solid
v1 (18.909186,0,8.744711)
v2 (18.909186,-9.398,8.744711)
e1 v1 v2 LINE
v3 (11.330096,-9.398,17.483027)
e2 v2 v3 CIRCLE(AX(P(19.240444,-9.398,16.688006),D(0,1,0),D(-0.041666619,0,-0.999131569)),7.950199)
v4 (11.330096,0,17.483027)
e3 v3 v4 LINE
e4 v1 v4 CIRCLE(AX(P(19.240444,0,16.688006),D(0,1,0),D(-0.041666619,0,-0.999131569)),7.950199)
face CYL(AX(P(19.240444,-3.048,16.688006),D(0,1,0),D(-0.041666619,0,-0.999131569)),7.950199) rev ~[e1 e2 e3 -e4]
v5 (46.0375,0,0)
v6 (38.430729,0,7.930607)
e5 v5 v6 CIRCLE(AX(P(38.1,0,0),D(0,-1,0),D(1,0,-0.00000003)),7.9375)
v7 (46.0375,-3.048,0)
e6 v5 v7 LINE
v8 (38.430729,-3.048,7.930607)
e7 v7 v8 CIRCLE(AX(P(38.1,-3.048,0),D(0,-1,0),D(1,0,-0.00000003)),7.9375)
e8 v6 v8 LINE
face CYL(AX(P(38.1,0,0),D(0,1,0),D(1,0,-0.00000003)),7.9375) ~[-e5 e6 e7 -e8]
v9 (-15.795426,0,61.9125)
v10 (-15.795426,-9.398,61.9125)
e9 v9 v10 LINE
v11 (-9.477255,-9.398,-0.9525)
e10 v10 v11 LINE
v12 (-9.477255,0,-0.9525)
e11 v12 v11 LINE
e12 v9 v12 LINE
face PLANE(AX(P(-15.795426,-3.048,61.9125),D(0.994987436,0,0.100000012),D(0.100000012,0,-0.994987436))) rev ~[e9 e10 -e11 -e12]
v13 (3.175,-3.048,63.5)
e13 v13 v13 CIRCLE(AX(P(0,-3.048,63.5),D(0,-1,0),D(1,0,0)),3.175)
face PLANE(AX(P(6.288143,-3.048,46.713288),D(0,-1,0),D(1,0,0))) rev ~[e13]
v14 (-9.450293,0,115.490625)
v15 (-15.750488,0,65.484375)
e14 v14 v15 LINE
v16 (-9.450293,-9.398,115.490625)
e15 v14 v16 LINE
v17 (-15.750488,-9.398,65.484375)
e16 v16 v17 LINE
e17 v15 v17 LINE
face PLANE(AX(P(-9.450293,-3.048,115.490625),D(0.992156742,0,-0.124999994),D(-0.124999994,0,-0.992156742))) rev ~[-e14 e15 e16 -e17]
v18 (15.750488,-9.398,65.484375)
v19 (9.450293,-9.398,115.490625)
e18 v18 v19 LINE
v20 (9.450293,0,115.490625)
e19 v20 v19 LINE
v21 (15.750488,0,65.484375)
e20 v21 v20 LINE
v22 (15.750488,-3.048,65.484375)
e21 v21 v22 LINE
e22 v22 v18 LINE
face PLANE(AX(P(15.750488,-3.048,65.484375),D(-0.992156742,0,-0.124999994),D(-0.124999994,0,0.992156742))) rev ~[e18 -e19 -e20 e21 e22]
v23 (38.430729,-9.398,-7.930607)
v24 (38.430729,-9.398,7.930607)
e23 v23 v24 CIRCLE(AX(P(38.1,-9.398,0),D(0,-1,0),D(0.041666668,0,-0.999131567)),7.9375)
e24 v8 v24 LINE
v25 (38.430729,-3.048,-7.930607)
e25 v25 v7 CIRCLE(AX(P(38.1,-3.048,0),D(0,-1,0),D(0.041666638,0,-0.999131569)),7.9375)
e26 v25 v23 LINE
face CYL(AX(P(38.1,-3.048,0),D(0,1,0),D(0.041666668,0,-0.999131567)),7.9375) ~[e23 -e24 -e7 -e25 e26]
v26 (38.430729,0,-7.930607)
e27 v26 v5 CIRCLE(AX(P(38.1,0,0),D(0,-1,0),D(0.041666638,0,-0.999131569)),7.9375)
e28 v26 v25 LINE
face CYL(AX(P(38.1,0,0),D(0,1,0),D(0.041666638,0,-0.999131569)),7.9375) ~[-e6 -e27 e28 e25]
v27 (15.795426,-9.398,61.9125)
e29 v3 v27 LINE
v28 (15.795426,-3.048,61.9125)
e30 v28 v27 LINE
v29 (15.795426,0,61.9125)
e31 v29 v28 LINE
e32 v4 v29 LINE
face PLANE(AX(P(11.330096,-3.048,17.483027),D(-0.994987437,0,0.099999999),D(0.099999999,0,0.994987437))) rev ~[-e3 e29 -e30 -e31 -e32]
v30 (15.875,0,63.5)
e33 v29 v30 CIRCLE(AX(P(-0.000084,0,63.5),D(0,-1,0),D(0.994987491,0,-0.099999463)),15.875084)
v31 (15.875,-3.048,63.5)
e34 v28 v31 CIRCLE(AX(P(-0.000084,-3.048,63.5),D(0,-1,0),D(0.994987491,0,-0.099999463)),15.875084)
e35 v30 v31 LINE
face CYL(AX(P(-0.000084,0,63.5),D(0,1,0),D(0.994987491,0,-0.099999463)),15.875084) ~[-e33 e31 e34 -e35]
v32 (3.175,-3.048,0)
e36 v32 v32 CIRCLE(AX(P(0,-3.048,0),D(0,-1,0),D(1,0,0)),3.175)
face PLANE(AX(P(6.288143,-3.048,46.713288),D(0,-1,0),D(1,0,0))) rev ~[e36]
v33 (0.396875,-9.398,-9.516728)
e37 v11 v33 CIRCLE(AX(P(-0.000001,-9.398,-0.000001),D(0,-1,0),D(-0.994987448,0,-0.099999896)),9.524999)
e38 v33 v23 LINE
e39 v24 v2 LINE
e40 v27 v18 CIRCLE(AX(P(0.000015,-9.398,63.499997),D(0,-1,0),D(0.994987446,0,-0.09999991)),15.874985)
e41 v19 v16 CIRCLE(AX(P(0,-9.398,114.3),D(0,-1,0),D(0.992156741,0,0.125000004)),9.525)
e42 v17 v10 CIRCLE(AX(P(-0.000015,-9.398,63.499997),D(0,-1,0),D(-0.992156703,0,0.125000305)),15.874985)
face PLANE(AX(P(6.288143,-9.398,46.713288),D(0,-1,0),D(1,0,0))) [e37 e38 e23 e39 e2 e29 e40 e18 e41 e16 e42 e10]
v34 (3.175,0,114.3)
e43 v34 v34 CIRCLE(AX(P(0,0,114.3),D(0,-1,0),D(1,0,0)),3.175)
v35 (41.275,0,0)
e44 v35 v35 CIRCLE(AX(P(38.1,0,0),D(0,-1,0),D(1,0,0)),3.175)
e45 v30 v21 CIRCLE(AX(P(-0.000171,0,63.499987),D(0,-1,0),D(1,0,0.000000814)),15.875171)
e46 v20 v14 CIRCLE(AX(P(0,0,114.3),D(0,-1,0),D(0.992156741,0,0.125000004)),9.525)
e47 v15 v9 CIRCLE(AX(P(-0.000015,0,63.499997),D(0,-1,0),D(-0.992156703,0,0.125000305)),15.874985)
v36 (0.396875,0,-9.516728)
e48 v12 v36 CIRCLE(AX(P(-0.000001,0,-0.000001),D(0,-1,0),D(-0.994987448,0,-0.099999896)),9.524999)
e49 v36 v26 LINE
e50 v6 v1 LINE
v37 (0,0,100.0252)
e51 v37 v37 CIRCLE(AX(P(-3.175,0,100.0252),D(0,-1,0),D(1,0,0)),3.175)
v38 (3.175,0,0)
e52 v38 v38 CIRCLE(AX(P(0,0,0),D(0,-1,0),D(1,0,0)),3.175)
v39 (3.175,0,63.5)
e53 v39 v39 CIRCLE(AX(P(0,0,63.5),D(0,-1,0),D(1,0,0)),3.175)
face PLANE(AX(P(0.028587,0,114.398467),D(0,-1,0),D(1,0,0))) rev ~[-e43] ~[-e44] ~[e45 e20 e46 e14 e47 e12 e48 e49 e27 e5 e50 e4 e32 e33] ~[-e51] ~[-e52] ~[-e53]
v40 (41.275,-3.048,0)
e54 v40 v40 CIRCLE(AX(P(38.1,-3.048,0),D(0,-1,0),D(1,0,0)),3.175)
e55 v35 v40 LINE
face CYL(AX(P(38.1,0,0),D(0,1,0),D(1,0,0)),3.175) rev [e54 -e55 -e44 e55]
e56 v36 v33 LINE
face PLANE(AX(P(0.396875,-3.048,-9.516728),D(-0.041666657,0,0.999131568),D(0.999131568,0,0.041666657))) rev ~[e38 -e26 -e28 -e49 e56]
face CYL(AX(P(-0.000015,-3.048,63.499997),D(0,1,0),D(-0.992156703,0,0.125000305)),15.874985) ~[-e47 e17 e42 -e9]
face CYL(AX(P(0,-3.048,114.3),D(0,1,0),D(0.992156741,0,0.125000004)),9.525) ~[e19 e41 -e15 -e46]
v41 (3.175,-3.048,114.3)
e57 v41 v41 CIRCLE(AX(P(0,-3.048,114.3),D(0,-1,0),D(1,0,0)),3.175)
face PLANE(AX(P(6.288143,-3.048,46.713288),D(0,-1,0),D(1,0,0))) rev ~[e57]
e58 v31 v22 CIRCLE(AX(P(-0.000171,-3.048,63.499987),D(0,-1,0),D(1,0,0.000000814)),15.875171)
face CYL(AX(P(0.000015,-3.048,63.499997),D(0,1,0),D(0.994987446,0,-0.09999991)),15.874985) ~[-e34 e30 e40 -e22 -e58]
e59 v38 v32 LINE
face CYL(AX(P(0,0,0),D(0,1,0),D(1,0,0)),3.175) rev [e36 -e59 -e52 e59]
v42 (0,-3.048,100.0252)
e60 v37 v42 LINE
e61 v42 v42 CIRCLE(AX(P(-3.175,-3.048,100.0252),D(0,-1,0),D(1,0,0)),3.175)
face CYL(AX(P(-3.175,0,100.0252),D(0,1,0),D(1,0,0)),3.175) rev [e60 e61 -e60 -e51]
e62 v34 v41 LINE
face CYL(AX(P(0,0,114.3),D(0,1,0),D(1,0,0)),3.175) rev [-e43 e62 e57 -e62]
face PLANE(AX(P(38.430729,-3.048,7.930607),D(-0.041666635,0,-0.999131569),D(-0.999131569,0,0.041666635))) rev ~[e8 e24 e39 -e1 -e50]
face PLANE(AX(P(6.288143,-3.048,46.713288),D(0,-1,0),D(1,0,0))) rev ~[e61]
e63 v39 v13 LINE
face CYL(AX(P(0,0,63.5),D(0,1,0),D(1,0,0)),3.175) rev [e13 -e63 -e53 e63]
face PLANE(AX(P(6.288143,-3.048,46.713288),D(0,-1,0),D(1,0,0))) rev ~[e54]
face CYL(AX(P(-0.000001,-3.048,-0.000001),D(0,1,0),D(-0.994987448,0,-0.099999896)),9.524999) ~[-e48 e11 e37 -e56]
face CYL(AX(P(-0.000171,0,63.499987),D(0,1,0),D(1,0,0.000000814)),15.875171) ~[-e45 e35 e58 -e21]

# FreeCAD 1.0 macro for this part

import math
import FreeCAD as App
import Part
import Sketcher
from FreeCAD import Vector
Q = App.Units.Quantity

doc = App.newDocument("Part")
params = doc.addObject("Spreadsheet::Sheet", "Params")
for row, (alias, value) in enumerate([
    ("sketch1_diameter", "0.25 in"),
    ("sketch1_diameter2", "0.25 in"),
    ("sketch1_diameter3", "0.25 in"),
    ("sketch1_diameter4", "0.25 in"),
    ("sketch1_diameter5", "0.25 in"),
    ("pad1_length", "0.12 in"),
    ("sketch2_radius", "0.375 in"),
    ("sketch2_radius2", "0.375 in"),
    ("sketch2_radius3", "0.3125 in"),
    ("sketch2_radius4", "0.313 in"),
    ("pad2_length", "0.25 in"),
], start=1):
    params.set(f"A{row}", alias)
    params.set(f"B{row}", "=" + value)
    params.setAlias(f"B{row}", alias)

body = doc.addObject("PartDesign::Body", "Body")

# Sketch on XZ plane
sketch1 = doc.addObject("Sketcher::SketchObject", "Sketch")
body.addObject(sketch1)
sketch1.AttachmentSupport = (doc.XZ_Plane, [""])
sketch1.MapMode = "FlatFace"
sketch1.addGeometry([
    Part.ArcOfCircle(Part.Circle(Vector(0, 114.3, 0), Vector(0, 0, 1), 9.525), math.radians(7.180756), math.radians(172.819244)),  # 0
    Part.LineSegment(Vector(-9.450293, 115.490625, 0), Vector(-15.750488, 65.484375, 0)),  # 1
    Part.ArcOfCircle(Part.Circle(Vector(-0.000015, 63.499997, 0), Vector(0, 0, 1), 15.874985), math.radians(172.819227), math.radians(185.739165)),  # 2
    Part.LineSegment(Vector(-15.795426, 61.9125, 0), Vector(-9.477255, -0.9525, 0)),  # 3
    Part.ArcOfCircle(Part.Circle(Vector(-0.000001, -0.000001, 0), Vector(0, 0, 1), 9.524999), math.radians(-174.260836), math.radians(-87.611979)),  # 4
    Part.LineSegment(Vector(0.396875, -9.516728, 0), Vector(38.430729, -7.930607, 0)),  # 5
    Part.ArcOfCircle(Part.Circle(Vector(38.1, 0, 0), Vector(0, 0, 1), 7.9375), math.radians(-87.611986), math.radians(0.000002)),  # 6
    Part.ArcOfCircle(Part.Circle(Vector(38.1, 0, 0), Vector(0, 0, 1), 7.9375), math.radians(-0.000002), math.radians(87.611986)),  # 7
    Part.LineSegment(Vector(38.430729, 7.930607, 0), Vector(18.909186, 8.744711, 0)),  # 8
    Part.ArcOfCircle(Part.Circle(Vector(19.240444, 16.688006, 0), Vector(0, 0, 1), 7.950199), math.radians(174.26082), math.radians(267.611987)),  # 9
    Part.LineSegment(Vector(11.330096, 17.483027, 0), Vector(15.795426, 61.9125, 0)),  # 10
    Part.ArcOfCircle(Part.Circle(Vector(-0.000084, 63.5, 0), Vector(0, 0, 1), 15.875084), math.radians(-5.73914), math.radians(0)),  # 11
    Part.ArcOfCircle(Part.Circle(Vector(-0.000171, 63.499987, 0), Vector(0, 0, 1), 15.875171), math.radians(0.000047), math.radians(7.180725)),  # 12
    Part.LineSegment(Vector(15.750488, 65.484375, 0), Vector(9.450293, 115.490625, 0)),  # 13
    Part.Circle(Vector(0, 0, 0), Vector(0, 0, 1), 3.175),  # 14
    Part.Circle(Vector(38.1, 0, 0), Vector(0, 0, 1), 3.175),  # 15
    Part.Circle(Vector(0, 63.5, 0), Vector(0, 0, 1), 3.175),  # 16
    Part.Circle(Vector(-3.175, 100.0252, 0), Vector(0, 0, 1), 3.175),  # 17
    Part.Circle(Vector(0, 114.3, 0), Vector(0, 0, 1), 3.175),  # 18
], False)
sketch1.addConstraint([
    Sketcher.Constraint("Coincident", 0, 2, 1, 1),
    Sketcher.Constraint("Coincident", 1, 2, 2, 1),
    Sketcher.Constraint("Coincident", 2, 2, 3, 1),
    Sketcher.Constraint("Coincident", 3, 2, 4, 1),
    Sketcher.Constraint("Coincident", 4, 2, 5, 1),
    Sketcher.Constraint("Coincident", 5, 2, 6, 1),
    Sketcher.Constraint("Coincident", 6, 2, 7, 1),
    Sketcher.Constraint("Coincident", 7, 2, 8, 1),
    Sketcher.Constraint("Coincident", 8, 2, 9, 2),
    Sketcher.Constraint("Coincident", 9, 1, 10, 1),
    Sketcher.Constraint("Coincident", 10, 2, 11, 1),
    Sketcher.Constraint("Coincident", 11, 2, 12, 1),
    Sketcher.Constraint("Coincident", 12, 2, 13, 1),
    Sketcher.Constraint("Coincident", 13, 2, 0, 1),
    Sketcher.Constraint("Coincident", 4, 3, -1, 1),
    Sketcher.Constraint("Coincident", 14, 3, -1, 1),
    Sketcher.Constraint("Coincident", 7, 3, 6, 3),
    Sketcher.Constraint("Coincident", 15, 3, 6, 3),
    Sketcher.Constraint("Coincident", 18, 3, 0, 3),
    Sketcher.Constraint("PointOnObject", 0, 3, -2),
    Sketcher.Constraint("PointOnObject", 6, 3, -1),
    Sketcher.Constraint("PointOnObject", 16, 3, -2),
    Sketcher.Constraint("PointOnObject", 6, 2, -1),
    Sketcher.Constraint("Diameter", 14, Q("0.25 in")),
    Sketcher.Constraint("Diameter", 15, Q("0.25 in")),
    Sketcher.Constraint("Diameter", 16, Q("0.25 in")),
    Sketcher.Constraint("Diameter", 17, Q("0.25 in")),
    Sketcher.Constraint("Diameter", 18, Q("0.25 in")),
    Sketcher.Constraint("Radius", 0, Q("0.375 in")),
    Sketcher.Constraint("Radius", 4, Q("0.375 in")),
    Sketcher.Constraint("Radius", 6, Q("0.3125 in")),
    Sketcher.Constraint("Radius", 9, Q("0.313 in")),
    Sketcher.Constraint("DistanceY", 2, 3, 0, 3, Q("2.0000001 in")),
    Sketcher.Constraint("DistanceY", 11, 3, 0, 3, Q("2 in")),
    Sketcher.Constraint("DistanceY", 16, 3, 0, 3, Q("2 in")),
    Sketcher.Constraint("DistanceY", -1, 1, 0, 3, Q("4.5 in")),
    Sketcher.Constraint("DistanceX", -1, 1, 6, 3, Q("1.5 in")),
    Sketcher.Constraint("DistanceY", -1, 1, 11, 2, Q("2.5 in")),
    Sketcher.Constraint("DistanceX", 17, 3, -1, 1, Q("0.125 in")),
    Sketcher.Constraint("DistanceY", -1, 1, 17, 3, Q("3.938 in")),
    Sketcher.Constraint("DistanceY", -1, 1, 0, 2, Q("4.546875 in")),
    Sketcher.Constraint("DistanceY", -1, 1, 1, 2, Q("2.578125 in")),
    Sketcher.Constraint("DistanceY", -1, 1, 2, 2, Q("2.4375 in")),
    Sketcher.Constraint("DistanceX", -1, 1, 4, 2, Q("0.015625 in")),
    Sketcher.Constraint("DistanceY", -1, 1, 10, 2, Q("2.4375 in")),
    Sketcher.Constraint("DistanceX", -1, 1, 11, 2, Q("0.625 in")),
    Sketcher.Constraint("DistanceY", -1, 1, 12, 2, Q("2.578125 in")),
    Sketcher.Constraint("DistanceY", -1, 1, 13, 2, Q("4.546875 in")),
    Sketcher.Constraint("Radius", 12, Q("15.875171 mm")),
    Sketcher.Constraint("DistanceY", 3, 2, -1, 1, Q("0.0375 in")),
    Sketcher.Constraint("Radius", 2, Q("15.874985 mm")),
    Sketcher.Constraint("Radius", 11, Q("15.875084 mm")),
    Sketcher.Constraint("DistanceY", 9, 3, 9, 1, Q("0.0313001 in")),
    Sketcher.Constraint("Distance", 10, Q("44.6533 mm")),
    Sketcher.Constraint("DistanceX", 3, 2, 9, 3, Q("28.717699 mm")),
    Sketcher.Constraint("Distance", 8, Q("19.538511 mm")),
    Sketcher.Constraint("DistanceX", 1, 2, -1, 1, Q("15.750488 mm")),
    Sketcher.Constraint("DistanceX", -1, 1, 5, 2, Q("38.430729 mm")),
    Sketcher.Constraint("DistanceX", -1, 1, 7, 2, Q("38.430729 mm")),
    Sketcher.Constraint("DistanceX", -1, 1, 12, 2, Q("15.750488 mm")),
])
sketch1.setExpression("Constraints[23]", "Params.sketch1_diameter")
sketch1.setExpression("Constraints[24]", "Params.sketch1_diameter2")
sketch1.setExpression("Constraints[25]", "Params.sketch1_diameter3")
sketch1.setExpression("Constraints[26]", "Params.sketch1_diameter4")
sketch1.setExpression("Constraints[27]", "Params.sketch1_diameter5")
pad1 = doc.addObject("PartDesign::Pad", "Pad")
body.addObject(pad1)
pad1.Profile = sketch1
pad1.setExpression("Length", "Params.pad1_length")

# Sketch on XZ plane
sketch2 = doc.addObject("Sketcher::SketchObject", "Sketch001")
body.addObject(sketch2)
sketch2.AttachmentSupport = (doc.XZ_Plane, [""])
sketch2.MapMode = "FlatFace"
sketch2.AttachmentOffset = App.Placement(Vector(0, 0, 0.12 * 25.4), App.Rotation())
sketch2.addGeometry([
    Part.LineSegment(Vector(15.750488, 65.484375, 0), Vector(9.450293, 115.490625, 0)),  # 0
    Part.ArcOfCircle(Part.Circle(Vector(0, 114.3, 0), Vector(0, 0, 1), 9.525), math.radians(7.180756), math.radians(172.819244)),  # 1
    Part.LineSegment(Vector(-9.450293, 115.490625, 0), Vector(-15.750488, 65.484375, 0)),  # 2
    Part.ArcOfCircle(Part.Circle(Vector(-0.000015, 63.499997, 0), Vector(0, 0, 1), 15.874985), math.radians(172.819227), math.radians(185.739165)),  # 3
    Part.LineSegment(Vector(-15.795426, 61.9125, 0), Vector(-9.477255, -0.9525, 0)),  # 4
    Part.ArcOfCircle(Part.Circle(Vector(-0.000001, -0.000001, 0), Vector(0, 0, 1), 9.524999), math.radians(-174.260836), math.radians(-87.611979)),  # 5
    Part.LineSegment(Vector(0.396875, -9.516728, 0), Vector(38.430729, -7.930607, 0)),  # 6
    Part.ArcOfCircle(Part.Circle(Vector(38.1, 0, 0), Vector(0, 0, 1), 7.9375), math.radians(-87.611984), math.radians(87.611984)),  # 7
    Part.LineSegment(Vector(38.430729, 7.930607, 0), Vector(18.909186, 8.744711, 0)),  # 8
    Part.ArcOfCircle(Part.Circle(Vector(19.240444, 16.688006, 0), Vector(0, 0, 1), 7.950199), math.radians(174.26082), math.radians(267.611987)),  # 9
    Part.LineSegment(Vector(11.330096, 17.483027, 0), Vector(15.795426, 61.9125, 0)),  # 10
    Part.ArcOfCircle(Part.Circle(Vector(0.000015, 63.499997, 0), Vector(0, 0, 1), 15.874985), math.radians(-5.739165), math.radians(7.180773)),  # 11
], False)
sketch2.addConstraint([
    Sketcher.Constraint("Coincident", 0, 2, 1, 1),
    Sketcher.Constraint("Coincident", 1, 2, 2, 1),
    Sketcher.Constraint("Coincident", 2, 2, 3, 1),
    Sketcher.Constraint("Coincident", 3, 2, 4, 1),
    Sketcher.Constraint("Coincident", 4, 2, 5, 1),
    Sketcher.Constraint("Coincident", 5, 2, 6, 1),
    Sketcher.Constraint("Coincident", 6, 2, 7, 1),
    Sketcher.Constraint("Coincident", 7, 2, 8, 1),
    Sketcher.Constraint("Coincident", 8, 2, 9, 2),
    Sketcher.Constraint("Coincident", 9, 1, 10, 1),
    Sketcher.Constraint("Coincident", 10, 2, 11, 1),
    Sketcher.Constraint("Coincident", 11, 2, 0, 1),
    Sketcher.Constraint("Coincident", 5, 3, -1, 1),
    Sketcher.Constraint("PointOnObject", 1, 3, -2),
    Sketcher.Constraint("PointOnObject", 7, 3, -1),
    Sketcher.Constraint("Radius", 1, Q("0.375 in")),
    Sketcher.Constraint("Radius", 5, Q("0.375 in")),
    Sketcher.Constraint("Radius", 7, Q("0.3125 in")),
    Sketcher.Constraint("Radius", 9, Q("0.313 in")),
    Sketcher.Constraint("DistanceY", 3, 3, 1, 3, Q("2.0000001 in")),
    Sketcher.Constraint("DistanceY", 11, 3, 1, 3, Q("2.0000001 in")),
    Sketcher.Constraint("DistanceY", -1, 1, 1, 3, Q("4.5 in")),
    Sketcher.Constraint("DistanceX", -1, 1, 7, 3, Q("1.5 in")),
    Sketcher.Constraint("DistanceY", -1, 1, 0, 2, Q("4.546875 in")),
    Sketcher.Constraint("DistanceY", -1, 1, 1, 2, Q("4.546875 in")),
    Sketcher.Constraint("DistanceY", -1, 1, 2, 2, Q("2.578125 in")),
    Sketcher.Constraint("DistanceY", -1, 1, 3, 2, Q("2.4375 in")),
    Sketcher.Constraint("DistanceX", -1, 1, 5, 2, Q("0.015625 in")),
    Sketcher.Constraint("DistanceY", -1, 1, 10, 2, Q("2.4375 in")),
    Sketcher.Constraint("DistanceY", -1, 1, 11, 2, Q("2.578125 in")),
    Sketcher.Constraint("DistanceY", 4, 2, 3, 2, Q("2.475 in")),
    Sketcher.Constraint("Radius", 3, Q("15.874985 mm")),
    Sketcher.Constraint("Radius", 11, Q("15.874985 mm")),
    Sketcher.Constraint("DistanceY", 9, 3, 9, 1, Q("0.0313001 in")),
    Sketcher.Constraint("Distance", 10, Q("44.6533 mm")),
    Sketcher.Constraint("DistanceX", 4, 2, 9, 3, Q("28.717699 mm")),
    Sketcher.Constraint("DistanceY", 7, 2, 9, 3, Q("8.757399 mm")),
    Sketcher.Constraint("Distance", 8, Q("19.538511 mm")),
    Sketcher.Constraint("DistanceX", 2, 2, -1, 1, Q("15.750488 mm")),
    Sketcher.Constraint("DistanceX", -1, 1, 6, 2, Q("38.430729 mm")),
    Sketcher.Constraint("DistanceX", -1, 1, 7, 2, Q("38.430729 mm")),
])
sketch2.setExpression("Constraints[15]", "Params.sketch2_radius")
sketch2.setExpression("Constraints[16]", "Params.sketch2_radius2")
sketch2.setExpression("Constraints[17]", "Params.sketch2_radius3")
sketch2.setExpression("Constraints[18]", "Params.sketch2_radius4")
pad2 = doc.addObject("PartDesign::Pad", "Pad001")
body.addObject(pad2)
pad2.Profile = sketch2
pad2.setExpression("Length", "Params.pad2_length")

doc.recompute()
